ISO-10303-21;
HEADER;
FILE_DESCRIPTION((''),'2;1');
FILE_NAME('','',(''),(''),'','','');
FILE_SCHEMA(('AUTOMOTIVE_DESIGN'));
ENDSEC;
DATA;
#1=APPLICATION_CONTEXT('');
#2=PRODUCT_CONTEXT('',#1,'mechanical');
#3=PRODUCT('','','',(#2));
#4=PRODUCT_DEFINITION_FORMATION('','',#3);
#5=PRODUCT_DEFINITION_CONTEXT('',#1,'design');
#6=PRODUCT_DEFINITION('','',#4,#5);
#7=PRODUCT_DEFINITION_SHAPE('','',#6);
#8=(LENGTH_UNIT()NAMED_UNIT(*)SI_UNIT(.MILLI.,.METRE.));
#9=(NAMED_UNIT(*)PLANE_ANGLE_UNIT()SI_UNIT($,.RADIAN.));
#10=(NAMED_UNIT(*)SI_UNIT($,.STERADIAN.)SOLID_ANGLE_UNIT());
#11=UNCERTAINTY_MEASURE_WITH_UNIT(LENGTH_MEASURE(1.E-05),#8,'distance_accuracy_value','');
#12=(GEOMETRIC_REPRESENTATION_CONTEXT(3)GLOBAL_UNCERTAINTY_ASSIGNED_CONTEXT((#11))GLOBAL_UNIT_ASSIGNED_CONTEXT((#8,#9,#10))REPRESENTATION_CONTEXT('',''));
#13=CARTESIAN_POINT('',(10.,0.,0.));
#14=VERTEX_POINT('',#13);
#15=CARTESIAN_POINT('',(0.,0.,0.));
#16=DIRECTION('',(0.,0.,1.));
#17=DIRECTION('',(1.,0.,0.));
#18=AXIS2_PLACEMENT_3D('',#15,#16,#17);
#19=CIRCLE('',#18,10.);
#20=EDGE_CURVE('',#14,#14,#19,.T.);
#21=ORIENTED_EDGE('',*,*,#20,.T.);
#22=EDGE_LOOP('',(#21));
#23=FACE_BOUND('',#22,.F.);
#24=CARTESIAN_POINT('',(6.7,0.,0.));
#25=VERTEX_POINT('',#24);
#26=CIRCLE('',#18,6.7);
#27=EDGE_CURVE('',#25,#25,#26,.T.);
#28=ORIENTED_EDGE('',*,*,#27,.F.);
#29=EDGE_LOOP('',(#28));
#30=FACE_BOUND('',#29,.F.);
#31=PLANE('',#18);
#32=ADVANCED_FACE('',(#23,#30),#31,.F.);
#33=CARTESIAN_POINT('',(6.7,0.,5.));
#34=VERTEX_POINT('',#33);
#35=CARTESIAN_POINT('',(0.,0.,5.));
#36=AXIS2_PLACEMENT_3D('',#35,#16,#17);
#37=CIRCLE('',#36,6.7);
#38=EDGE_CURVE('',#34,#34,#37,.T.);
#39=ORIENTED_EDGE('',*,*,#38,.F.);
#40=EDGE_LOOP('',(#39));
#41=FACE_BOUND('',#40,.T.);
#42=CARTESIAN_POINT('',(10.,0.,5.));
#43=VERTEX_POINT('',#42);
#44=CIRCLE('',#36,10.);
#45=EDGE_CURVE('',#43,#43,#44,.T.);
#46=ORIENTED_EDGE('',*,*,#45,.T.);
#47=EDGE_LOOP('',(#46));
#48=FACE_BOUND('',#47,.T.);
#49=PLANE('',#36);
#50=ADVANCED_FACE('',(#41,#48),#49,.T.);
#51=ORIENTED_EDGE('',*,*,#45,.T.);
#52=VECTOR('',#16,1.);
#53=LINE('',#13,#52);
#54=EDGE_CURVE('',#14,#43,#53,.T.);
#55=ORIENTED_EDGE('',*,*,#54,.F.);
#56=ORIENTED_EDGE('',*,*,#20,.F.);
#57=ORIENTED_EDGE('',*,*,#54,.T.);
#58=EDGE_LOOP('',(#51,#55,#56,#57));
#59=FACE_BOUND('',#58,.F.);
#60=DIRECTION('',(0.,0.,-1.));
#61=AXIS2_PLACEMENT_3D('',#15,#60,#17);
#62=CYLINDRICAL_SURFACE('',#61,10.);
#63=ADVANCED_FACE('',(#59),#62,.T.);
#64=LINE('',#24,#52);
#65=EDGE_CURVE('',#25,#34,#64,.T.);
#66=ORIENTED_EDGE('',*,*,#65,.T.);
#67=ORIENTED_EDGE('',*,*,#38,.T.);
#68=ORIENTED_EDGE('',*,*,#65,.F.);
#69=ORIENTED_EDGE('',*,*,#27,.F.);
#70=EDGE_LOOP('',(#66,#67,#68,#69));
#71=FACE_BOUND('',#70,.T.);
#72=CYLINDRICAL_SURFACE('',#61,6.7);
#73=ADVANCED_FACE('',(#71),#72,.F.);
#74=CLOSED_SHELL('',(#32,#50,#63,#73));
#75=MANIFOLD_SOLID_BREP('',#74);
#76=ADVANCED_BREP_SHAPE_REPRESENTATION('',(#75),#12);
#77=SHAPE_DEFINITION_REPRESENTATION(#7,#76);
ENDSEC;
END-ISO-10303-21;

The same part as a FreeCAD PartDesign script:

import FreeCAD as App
import Part
import Sketcher

doc = App.newDocument("Part")
params = doc.addObject("Spreadsheet::Sheet", "Params")
for row, (alias, value) in enumerate([
    ("sketch1_diameter", "20 mm"),
    ("sketch1_diameter2", "13.4 mm"),
    ("pad1_length", "5 mm"),
], start=1):
    params.set(f"A{row}", alias)
    params.set(f"B{row}", "=" + value)
    params.setAlias(f"B{row}", alias)

body = doc.addObject("PartDesign::Body", "Body")

# Sketch on XY plane
sketch1 = body.newObject("Sketcher::SketchObject", "Sketch")
sketch1.AttachmentSupport = (doc.getObject("XY_Plane"), [""])
sketch1.MapMode = "FlatFace"
sketch1.addGeometry([
    Part.Circle(App.Vector(0, 0, 0), App.Vector(0, 0, 1), 10),
    Part.Circle(App.Vector(0, 0, 0), App.Vector(0, 0, 1), 7),
], False)
sketch1.addConstraint([
    Sketcher.Constraint("Coincident", 0, 3, -1, 1),
    Sketcher.Constraint("Coincident", 1, 3, -1, 1),
    Sketcher.Constraint("Diameter", 0, 20.0),
    Sketcher.Constraint("Diameter", 1, 13.4),
])
sketch1.setExpression("Constraints[2]", "Params.sketch1_diameter")
sketch1.setExpression("Constraints[3]", "Params.sketch1_diameter2")
pad1 = body.newObject("PartDesign::Pad", "Pad")
pad1.Profile = sketch1
pad1.setExpression("Length", "Params.pad1_length")

doc.recompute()
